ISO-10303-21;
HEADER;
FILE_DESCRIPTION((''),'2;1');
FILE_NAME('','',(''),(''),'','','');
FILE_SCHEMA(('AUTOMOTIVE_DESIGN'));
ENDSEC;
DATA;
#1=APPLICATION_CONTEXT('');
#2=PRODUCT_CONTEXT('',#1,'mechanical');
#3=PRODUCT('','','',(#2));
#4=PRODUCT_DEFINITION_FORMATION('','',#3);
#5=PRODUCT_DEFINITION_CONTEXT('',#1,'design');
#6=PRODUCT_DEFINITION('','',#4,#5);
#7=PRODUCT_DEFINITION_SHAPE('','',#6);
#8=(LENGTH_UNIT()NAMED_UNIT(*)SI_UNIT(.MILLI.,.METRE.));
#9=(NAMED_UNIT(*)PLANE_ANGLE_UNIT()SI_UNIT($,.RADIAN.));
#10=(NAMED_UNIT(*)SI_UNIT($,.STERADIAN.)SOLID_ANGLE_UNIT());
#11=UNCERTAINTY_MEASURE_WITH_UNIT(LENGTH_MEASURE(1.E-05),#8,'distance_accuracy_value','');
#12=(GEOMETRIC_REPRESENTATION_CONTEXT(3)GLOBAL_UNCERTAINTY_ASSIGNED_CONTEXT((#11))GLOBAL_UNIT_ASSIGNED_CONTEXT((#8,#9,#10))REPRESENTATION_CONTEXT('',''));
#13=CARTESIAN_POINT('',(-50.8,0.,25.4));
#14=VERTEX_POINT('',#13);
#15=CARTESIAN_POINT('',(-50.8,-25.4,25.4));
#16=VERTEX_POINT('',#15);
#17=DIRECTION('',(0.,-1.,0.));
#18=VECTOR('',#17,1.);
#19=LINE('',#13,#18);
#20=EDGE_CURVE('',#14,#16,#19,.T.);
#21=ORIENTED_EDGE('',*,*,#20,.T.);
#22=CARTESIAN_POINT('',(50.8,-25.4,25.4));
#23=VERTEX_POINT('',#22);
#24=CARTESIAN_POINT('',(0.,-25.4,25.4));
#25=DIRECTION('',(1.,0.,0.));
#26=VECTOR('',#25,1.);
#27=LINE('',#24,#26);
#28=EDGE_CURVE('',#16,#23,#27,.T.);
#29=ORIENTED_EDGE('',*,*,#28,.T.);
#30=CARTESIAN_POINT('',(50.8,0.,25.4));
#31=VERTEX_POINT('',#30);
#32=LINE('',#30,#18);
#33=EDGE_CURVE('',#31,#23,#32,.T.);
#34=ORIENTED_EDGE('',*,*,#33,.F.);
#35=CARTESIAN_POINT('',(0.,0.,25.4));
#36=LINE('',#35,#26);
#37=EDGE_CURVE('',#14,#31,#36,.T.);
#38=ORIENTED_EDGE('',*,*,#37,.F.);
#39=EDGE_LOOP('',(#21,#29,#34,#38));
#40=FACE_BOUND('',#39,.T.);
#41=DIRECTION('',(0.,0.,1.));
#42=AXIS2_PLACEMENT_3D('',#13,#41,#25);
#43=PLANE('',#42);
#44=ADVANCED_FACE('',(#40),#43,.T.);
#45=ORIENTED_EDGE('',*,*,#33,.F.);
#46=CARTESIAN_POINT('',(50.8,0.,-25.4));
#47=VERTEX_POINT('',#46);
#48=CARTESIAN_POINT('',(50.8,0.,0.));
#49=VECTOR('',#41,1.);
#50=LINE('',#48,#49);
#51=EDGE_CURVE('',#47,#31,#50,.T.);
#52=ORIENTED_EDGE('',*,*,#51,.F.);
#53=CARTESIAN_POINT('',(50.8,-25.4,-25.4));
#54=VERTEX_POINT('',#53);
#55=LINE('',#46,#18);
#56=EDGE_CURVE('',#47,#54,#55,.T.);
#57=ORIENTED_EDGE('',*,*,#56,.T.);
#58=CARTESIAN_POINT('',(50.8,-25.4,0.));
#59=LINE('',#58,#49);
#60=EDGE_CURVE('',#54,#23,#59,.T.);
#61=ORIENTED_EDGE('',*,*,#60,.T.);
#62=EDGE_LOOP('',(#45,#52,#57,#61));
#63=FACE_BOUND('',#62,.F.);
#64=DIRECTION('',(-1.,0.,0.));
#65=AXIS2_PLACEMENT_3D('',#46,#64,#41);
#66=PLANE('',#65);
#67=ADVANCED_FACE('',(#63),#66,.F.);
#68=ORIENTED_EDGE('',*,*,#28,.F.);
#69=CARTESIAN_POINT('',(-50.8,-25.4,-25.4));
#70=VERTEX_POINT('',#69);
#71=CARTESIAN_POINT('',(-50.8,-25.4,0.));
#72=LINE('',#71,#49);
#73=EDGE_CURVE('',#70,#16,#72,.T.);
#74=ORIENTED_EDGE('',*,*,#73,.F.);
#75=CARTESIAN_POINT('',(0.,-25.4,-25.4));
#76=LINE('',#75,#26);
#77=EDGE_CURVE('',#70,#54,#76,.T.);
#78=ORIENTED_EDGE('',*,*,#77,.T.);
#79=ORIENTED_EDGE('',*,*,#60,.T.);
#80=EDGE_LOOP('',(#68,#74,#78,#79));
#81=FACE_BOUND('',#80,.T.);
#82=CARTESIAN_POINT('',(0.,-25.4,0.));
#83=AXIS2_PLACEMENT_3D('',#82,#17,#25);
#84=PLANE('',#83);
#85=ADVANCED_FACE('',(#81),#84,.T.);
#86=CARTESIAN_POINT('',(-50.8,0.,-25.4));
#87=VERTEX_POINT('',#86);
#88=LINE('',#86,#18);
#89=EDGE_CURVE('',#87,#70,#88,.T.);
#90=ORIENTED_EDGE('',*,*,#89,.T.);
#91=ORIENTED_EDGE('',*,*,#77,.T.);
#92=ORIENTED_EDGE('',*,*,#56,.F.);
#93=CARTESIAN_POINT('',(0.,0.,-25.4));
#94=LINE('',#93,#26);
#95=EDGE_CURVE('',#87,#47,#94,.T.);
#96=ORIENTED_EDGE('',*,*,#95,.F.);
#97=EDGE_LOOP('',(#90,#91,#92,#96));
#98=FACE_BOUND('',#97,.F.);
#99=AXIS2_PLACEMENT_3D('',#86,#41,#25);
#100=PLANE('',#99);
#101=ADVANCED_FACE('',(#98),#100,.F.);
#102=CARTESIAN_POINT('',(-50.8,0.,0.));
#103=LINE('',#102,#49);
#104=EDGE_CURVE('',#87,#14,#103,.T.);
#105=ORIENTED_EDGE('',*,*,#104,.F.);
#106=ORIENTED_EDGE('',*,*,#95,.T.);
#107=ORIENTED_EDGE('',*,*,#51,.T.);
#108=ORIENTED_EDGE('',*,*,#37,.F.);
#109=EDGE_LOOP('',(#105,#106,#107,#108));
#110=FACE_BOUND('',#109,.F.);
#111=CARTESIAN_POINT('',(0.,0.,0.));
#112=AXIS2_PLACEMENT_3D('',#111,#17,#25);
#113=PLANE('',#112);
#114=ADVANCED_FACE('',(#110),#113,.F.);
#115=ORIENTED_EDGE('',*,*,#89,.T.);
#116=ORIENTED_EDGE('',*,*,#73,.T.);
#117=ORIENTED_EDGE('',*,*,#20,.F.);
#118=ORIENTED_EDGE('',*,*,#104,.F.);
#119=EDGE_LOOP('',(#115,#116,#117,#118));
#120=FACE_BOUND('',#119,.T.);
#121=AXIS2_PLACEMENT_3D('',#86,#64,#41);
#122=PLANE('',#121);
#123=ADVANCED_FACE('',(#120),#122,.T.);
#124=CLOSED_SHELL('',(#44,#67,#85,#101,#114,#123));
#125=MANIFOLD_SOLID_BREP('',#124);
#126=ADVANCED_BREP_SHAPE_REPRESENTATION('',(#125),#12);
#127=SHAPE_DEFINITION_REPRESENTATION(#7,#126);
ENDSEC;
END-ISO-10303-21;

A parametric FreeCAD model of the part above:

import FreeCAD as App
import Part
import Sketcher

V = App.Vector
Q = App.Units.Quantity


def add_polygon(sketch, points):
    """Adds a closed chain of lines whose ends are joined by coincident constraints."""
    first, n = sketch.GeometryCount, len(points)
    for a, b in zip(points, points[1:] + points[:1]):
        sketch.addGeometry(Part.LineSegment(App.Vector(*a, 0), App.Vector(*b, 0)), False)
    for i in range(n):
        sketch.addConstraint(Sketcher.Constraint("Coincident", first + i, 2, first + (i + 1) % n, 1))

doc = App.newDocument("Part")
body = doc.addObject("PartDesign::Body", "Body")

# Sketch on XZ plane
sketch1 = body.newObject("Sketcher::SketchObject", "Sketch")
sketch1.AttachmentSupport = (doc.getObject("XZ_Plane"), [""])
sketch1.MapMode = "FlatFace"
add_polygon(sketch1, [(-50.8, 25.4), (-50.8, -25.4), (50.8, -25.4), (50.8, 25.4)])  # lines 0-3
sketch1.addConstraint([
    Sketcher.Constraint("Vertical", 0),
    Sketcher.Constraint("Horizontal", 1),
    Sketcher.Constraint("Vertical", 2),
    Sketcher.Constraint("Horizontal", 3),
    Sketcher.Constraint("Symmetric", 0, 2, 2, 2, -1, 1),
    Sketcher.Constraint("DistanceX", 1, 1, 1, 2, Q("4 in")),
    Sketcher.Constraint("DistanceY", 0, 2, 0, 1, Q("2 in")),
])
pad1 = body.newObject("PartDesign::Pad", "Pad")
pad1.Profile = sketch1
pad1.Length = Q("1 in")

doc.recompute()
